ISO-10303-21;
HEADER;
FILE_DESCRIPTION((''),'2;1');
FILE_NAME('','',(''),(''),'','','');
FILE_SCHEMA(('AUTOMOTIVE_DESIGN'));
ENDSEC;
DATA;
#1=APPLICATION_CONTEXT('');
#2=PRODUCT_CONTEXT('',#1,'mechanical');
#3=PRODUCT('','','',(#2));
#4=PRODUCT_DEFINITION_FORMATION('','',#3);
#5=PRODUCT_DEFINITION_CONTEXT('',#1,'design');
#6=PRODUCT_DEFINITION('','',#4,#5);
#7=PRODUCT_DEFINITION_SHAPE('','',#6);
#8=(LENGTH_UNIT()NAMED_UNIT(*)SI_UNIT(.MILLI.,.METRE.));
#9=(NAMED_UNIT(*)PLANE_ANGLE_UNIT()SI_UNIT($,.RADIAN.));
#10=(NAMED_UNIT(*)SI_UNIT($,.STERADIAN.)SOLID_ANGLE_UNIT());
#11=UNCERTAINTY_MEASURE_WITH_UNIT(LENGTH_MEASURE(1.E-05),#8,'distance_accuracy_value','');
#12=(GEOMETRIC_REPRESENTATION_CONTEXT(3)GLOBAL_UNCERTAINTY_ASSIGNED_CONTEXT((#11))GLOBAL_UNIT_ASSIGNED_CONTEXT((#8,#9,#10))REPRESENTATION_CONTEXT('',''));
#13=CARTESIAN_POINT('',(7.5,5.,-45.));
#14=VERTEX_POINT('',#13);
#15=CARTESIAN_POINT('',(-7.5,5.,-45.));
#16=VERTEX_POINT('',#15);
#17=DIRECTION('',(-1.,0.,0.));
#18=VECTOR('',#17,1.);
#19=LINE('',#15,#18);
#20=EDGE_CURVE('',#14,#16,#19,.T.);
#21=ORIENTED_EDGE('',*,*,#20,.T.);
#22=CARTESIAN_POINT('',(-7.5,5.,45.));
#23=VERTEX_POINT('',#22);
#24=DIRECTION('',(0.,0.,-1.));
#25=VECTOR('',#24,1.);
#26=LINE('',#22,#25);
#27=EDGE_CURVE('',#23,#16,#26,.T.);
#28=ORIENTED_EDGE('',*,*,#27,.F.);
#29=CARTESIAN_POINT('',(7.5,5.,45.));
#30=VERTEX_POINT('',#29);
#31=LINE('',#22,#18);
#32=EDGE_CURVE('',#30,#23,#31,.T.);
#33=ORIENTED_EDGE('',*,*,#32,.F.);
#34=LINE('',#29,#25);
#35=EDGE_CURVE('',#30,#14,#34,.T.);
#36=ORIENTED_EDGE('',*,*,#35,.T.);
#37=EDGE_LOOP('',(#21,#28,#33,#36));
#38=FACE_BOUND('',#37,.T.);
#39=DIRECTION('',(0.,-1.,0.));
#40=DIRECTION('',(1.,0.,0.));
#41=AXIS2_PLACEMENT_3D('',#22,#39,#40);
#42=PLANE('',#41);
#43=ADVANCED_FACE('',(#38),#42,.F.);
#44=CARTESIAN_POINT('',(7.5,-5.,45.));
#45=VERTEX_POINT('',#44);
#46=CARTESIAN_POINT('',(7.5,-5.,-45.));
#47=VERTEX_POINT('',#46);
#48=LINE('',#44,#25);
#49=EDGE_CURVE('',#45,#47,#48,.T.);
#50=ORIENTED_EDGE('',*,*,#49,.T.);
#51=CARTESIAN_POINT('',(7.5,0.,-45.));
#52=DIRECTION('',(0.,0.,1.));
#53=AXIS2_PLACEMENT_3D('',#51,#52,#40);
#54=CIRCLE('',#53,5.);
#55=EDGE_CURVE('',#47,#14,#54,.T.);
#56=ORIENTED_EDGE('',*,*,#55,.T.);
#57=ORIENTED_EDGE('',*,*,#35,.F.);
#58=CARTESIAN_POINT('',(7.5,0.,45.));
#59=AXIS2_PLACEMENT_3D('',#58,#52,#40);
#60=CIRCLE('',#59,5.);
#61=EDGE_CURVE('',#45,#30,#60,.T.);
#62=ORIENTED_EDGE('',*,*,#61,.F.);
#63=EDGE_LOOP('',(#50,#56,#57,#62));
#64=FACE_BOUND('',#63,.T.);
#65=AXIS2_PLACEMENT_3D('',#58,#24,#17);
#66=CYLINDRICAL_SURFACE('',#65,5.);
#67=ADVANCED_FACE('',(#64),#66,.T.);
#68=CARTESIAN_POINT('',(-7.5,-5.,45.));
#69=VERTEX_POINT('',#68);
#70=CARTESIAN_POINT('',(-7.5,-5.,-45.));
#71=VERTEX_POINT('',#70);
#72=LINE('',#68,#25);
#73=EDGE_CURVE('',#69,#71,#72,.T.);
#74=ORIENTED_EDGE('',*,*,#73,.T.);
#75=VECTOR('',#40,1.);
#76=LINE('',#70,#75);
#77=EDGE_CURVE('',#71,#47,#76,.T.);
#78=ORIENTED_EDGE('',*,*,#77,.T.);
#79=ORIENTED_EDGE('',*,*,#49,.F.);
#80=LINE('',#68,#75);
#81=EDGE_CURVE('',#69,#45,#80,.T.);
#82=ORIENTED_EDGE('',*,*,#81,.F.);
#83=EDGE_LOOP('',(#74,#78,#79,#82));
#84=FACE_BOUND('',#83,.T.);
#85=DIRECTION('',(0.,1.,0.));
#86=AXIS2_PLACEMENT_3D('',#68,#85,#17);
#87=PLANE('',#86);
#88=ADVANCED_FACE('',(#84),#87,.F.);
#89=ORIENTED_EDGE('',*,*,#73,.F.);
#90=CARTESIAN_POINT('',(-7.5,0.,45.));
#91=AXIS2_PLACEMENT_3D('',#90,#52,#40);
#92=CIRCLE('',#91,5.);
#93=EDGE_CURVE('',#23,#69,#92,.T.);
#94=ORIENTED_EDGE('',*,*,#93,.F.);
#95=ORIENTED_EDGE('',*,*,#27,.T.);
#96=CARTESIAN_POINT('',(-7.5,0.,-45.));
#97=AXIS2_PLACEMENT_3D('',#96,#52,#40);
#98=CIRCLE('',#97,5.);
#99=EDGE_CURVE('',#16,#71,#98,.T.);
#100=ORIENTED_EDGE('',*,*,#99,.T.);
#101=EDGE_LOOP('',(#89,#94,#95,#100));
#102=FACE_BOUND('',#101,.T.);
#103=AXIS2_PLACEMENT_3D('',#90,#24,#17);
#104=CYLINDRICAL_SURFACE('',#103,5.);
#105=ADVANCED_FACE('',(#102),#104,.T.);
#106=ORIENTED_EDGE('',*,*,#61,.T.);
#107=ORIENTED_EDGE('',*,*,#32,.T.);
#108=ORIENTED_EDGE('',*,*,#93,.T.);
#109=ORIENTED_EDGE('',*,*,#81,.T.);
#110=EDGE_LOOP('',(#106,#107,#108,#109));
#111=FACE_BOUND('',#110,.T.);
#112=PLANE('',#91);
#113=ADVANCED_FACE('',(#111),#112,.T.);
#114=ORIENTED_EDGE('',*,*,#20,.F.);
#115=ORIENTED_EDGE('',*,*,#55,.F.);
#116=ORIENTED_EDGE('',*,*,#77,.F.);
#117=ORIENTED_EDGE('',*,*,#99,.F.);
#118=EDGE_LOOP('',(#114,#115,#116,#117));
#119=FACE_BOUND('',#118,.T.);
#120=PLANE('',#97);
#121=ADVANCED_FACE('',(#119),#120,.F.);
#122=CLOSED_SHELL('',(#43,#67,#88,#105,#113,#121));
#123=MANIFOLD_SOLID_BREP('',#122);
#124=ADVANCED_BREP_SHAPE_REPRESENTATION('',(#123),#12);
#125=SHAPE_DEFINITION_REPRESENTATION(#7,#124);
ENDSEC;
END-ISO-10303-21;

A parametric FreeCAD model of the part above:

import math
import FreeCAD as App
import Part
import Sketcher

V = App.Vector

doc = App.newDocument("Part")
params = doc.addObject("Spreadsheet::Sheet", "Params")
for row, (alias, value) in enumerate([
    ("sketch1_radius", "5 mm"),
    ("sketch1_width", "15 mm"),
    ("pad1_length", "90 mm"),
], start=1):
    params.set(f"A{row}", alias)
    params.set(f"B{row}", "=" + value)
    params.setAlias(f"B{row}", alias)

body = doc.addObject("PartDesign::Body", "Body")

sketch1 = body.newObject("Sketcher::SketchObject", "Sketch")
sketch1.AttachmentSupport = (doc.getObject("XY_Plane"), [""])
sketch1.MapMode = "FlatFace"
sketch1.addGeometry([
    Part.LineSegment(V(7.5, 5, 0), V(-7.5, 5, 0)),
    Part.ArcOfCircle(Part.Circle(V(-7.5, 0, 0), V(0, 0, 1), 5), math.radians(90), math.radians(270)),
    Part.LineSegment(V(-7.5, -5, 0), V(7.5, -5, 0)),
    Part.ArcOfCircle(Part.Circle(V(7.5, 0, 0), V(0, 0, 1), 5), math.radians(-90), math.radians(90)),
], False)
sketch1.addConstraint([
    Sketcher.Constraint("Tangent", 0, 2, 1, 1),
    Sketcher.Constraint("Tangent", 1, 2, 2, 1),
    Sketcher.Constraint("Tangent", 2, 2, 3, 1),
    Sketcher.Constraint("Tangent", 3, 2, 0, 1),
    Sketcher.Constraint("Horizontal", 0),
    Sketcher.Constraint("Horizontal", 2),
    Sketcher.Constraint("Symmetric", 1, 3, 3, 3, -1, 1),
    Sketcher.Constraint("Radius", 1, 5.0),
    Sketcher.Constraint("DistanceX", 0, 2, 0, 1, 15.0),
])
sketch1.setExpression("Constraints[7]", "Params.sketch1_radius")
sketch1.setExpression("Constraints[8]", "Params.sketch1_width")
pad1 = body.newObject("PartDesign::Pad", "Pad")
pad1.Profile = sketch1
pad1.setExpression("Length", "Params.pad1_length")
pad1.Midplane = True

doc.recompute()
